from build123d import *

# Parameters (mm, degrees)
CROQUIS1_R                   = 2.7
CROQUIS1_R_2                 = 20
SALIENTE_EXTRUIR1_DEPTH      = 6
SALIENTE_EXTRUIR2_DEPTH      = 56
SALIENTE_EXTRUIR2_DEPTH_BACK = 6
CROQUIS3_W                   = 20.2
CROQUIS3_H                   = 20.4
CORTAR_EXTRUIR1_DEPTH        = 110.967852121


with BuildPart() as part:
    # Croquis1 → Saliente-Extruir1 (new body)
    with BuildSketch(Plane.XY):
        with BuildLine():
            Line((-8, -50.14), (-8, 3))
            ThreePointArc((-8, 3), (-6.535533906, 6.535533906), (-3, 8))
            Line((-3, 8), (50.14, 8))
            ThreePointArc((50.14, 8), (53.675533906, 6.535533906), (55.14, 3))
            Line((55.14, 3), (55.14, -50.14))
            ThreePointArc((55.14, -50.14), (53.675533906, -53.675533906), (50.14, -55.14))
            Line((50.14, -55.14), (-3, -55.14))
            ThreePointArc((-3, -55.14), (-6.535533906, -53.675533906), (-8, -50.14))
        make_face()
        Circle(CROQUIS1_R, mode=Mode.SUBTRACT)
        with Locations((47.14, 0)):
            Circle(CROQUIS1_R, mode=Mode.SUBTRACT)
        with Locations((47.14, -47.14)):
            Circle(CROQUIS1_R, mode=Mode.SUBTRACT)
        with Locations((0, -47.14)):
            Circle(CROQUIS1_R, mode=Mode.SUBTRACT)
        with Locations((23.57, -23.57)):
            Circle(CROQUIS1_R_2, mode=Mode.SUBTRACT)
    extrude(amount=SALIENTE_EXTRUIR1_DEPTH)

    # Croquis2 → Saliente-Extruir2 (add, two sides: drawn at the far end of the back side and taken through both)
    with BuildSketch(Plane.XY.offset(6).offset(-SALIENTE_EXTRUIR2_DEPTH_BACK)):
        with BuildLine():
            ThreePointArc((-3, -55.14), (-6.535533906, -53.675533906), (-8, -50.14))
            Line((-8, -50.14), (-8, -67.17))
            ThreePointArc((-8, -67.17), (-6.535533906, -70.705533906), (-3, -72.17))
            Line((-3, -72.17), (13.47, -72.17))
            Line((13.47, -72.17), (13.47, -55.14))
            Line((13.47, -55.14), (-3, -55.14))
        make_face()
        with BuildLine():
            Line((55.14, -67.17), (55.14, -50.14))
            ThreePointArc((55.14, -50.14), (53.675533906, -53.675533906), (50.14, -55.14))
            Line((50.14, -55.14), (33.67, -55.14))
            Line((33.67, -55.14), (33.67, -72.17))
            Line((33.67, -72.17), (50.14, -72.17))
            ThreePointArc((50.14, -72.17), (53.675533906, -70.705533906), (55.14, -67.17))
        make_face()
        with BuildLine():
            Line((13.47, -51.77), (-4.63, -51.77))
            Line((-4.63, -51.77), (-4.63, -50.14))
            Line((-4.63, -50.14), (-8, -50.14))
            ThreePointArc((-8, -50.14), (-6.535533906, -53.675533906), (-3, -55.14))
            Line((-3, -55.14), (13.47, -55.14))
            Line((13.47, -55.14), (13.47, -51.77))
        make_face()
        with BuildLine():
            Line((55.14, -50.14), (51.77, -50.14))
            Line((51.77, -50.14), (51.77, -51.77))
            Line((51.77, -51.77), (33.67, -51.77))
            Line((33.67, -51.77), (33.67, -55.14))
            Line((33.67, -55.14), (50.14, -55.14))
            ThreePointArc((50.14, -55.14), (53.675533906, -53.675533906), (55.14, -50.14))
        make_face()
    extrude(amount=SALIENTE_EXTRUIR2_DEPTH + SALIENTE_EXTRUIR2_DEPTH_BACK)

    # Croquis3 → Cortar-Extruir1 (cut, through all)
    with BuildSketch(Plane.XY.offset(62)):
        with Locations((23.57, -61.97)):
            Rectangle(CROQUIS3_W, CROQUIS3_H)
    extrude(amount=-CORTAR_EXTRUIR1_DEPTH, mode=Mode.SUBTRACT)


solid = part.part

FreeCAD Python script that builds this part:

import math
import FreeCAD as App
import Part
import Sketcher

V = App.Vector
Q = App.Units.Quantity


def add_polygon(sketch, points):
    """Adds a closed chain of lines whose ends are joined by coincident constraints."""
    first, n = sketch.GeometryCount, len(points)
    for a, b in zip(points, points[1:] + points[:1]):
        sketch.addGeometry(Part.LineSegment(App.Vector(*a, 0), App.Vector(*b, 0)), False)
    for i in range(n):
        sketch.addConstraint(Sketcher.Constraint("Coincident", first + i, 2, first + (i + 1) % n, 1))

doc = App.newDocument("Part")
body = doc.addObject("PartDesign::Body", "Body")

# Sketch on XY plane
sketch1 = body.newObject("Sketcher::SketchObject", "Sketch")
sketch1.AttachmentSupport = (doc.getObject("XY_Plane"), [""])
sketch1.MapMode = "FlatFace"
sketch1.addGeometry(Part.LineSegment(V(-8, 3, 0), V(-8, -50.1, 0)), False)
sketch1.addGeometry(Part.ArcOfCircle(Part.Circle(V(-3, -50.1, 0), V(0, 0, 1), 5), math.radians(180), math.radians(270)), False)
sketch1.addGeometry(Part.LineSegment(V(-3, -55.1, 0), V(50.1, -55.1, 0)), False)
sketch1.addGeometry(Part.ArcOfCircle(Part.Circle(V(50.1, -50.1, 0), V(0, 0, 1), 5), math.radians(-90), math.radians(0)), False)
sketch1.addGeometry(Part.LineSegment(V(55.1, -50.1, 0), V(55.1, 3, 0)), False)
sketch1.addGeometry(Part.ArcOfCircle(Part.Circle(V(50.1, 3, 0), V(0, 0, 1), 5), math.radians(0), math.radians(90)), False)
sketch1.addGeometry(Part.LineSegment(V(50.1, 8, 0), V(-3, 8, 0)), False)
sketch1.addGeometry(Part.ArcOfCircle(Part.Circle(V(-3, 3, 0), V(0, 0, 1), 5), math.radians(90), math.radians(180)), False)
sketch1.addGeometry(Part.Circle(V(47.1, -47.1, 0), V(0, 0, 1), 2.7), False)
sketch1.addGeometry(Part.Circle(V(0, -47.1, 0), V(0, 0, 1), 2.7), False)
sketch1.addGeometry(Part.Circle(V(47.1, 0, 0), V(0, 0, 1), 2.7), False)
sketch1.addGeometry(Part.Circle(V(23.6, -23.6, 0), V(0, 0, 1), 20), False)
sketch1.addGeometry(Part.Circle(V(0, 0, 0), V(0, 0, 1), 2.7), False)
sketch1.addConstraint(Sketcher.Constraint("Tangent", 0, 2, 1, 1))
sketch1.addConstraint(Sketcher.Constraint("Tangent", 1, 2, 2, 1))
sketch1.addConstraint(Sketcher.Constraint("Tangent", 2, 2, 3, 1))
sketch1.addConstraint(Sketcher.Constraint("Tangent", 3, 2, 4, 1))
sketch1.addConstraint(Sketcher.Constraint("Tangent", 4, 2, 5, 1))
sketch1.addConstraint(Sketcher.Constraint("Tangent", 5, 2, 6, 1))
sketch1.addConstraint(Sketcher.Constraint("Tangent", 6, 2, 7, 1))
sketch1.addConstraint(Sketcher.Constraint("Tangent", 7, 2, 0, 1))
sketch1.addConstraint(Sketcher.Constraint("Vertical", 0))
sketch1.addConstraint(Sketcher.Constraint("Horizontal", 2))
sketch1.addConstraint(Sketcher.Constraint("Vertical", 4))
sketch1.addConstraint(Sketcher.Constraint("Horizontal", 6))
sketch1.addConstraint(Sketcher.Constraint("Coincident", 12, 3, -1, 1))
sketch1.addConstraint(Sketcher.Constraint("Equal", 1, 3))
sketch1.addConstraint(Sketcher.Constraint("Equal", 3, 5))
sketch1.addConstraint(Sketcher.Constraint("Equal", 5, 7))
sketch1.addConstraint(Sketcher.Constraint("Equal", 8, 9))
sketch1.addConstraint(Sketcher.Constraint("Equal", 9, 10))
sketch1.addConstraint(Sketcher.Constraint("Equal", 10, 12))
sketch1.addConstraint(Sketcher.Constraint("PointOnObject", 9, 3, -2))
sketch1.addConstraint(Sketcher.Constraint("PointOnObject", 10, 3, -1))
sketch1.addConstraint(Sketcher.Constraint("Horizontal", 8, 3, 9, 3))
sketch1.addConstraint(Sketcher.Constraint("Vertical", 8, 3, 10, 3))
sketch1.addConstraint(Sketcher.Constraint("Equal", 6, 0))
sketch1.addConstraint(Sketcher.Constraint("Diameter", 11, Q("40 mm")))
sketch1.addConstraint(Sketcher.Constraint("Radius", 1, Q("5 mm")))
sketch1.addConstraint(Sketcher.Constraint("Diameter", 8, Q("5.4 mm")))
sketch1.addConstraint(Sketcher.Constraint("DistanceX", 1, 3, -1, 1, Q("3 mm")))
sketch1.addConstraint(Sketcher.Constraint("DistanceY", -1, 1, 5, 3, Q("3 mm")))
sketch1.addConstraint(Sketcher.Constraint("DistanceX", 8, 3, 3, 3, Q("3 mm")))
sketch1.addConstraint(Sketcher.Constraint("DistanceY", 3, 3, 8, 3, Q("3 mm")))
sketch1.addConstraint(Sketcher.Constraint("DistanceX", 2, 1, 2, 2, Q("53.14 mm")))
sketch1.addConstraint(Sketcher.Constraint("DistanceX", -1, 1, 11, 3, Q("23.57 mm")))
sketch1.addConstraint(Sketcher.Constraint("DistanceY", 11, 3, -1, 1, Q("23.57 mm")))
pad1 = body.newObject("PartDesign::Pad", "Pad")
pad1.Profile = sketch1
pad1.Length = 6

# Sketch on XY plane
sketch2 = body.newObject("Sketcher::SketchObject", "Sketch001")
sketch2.AttachmentSupport = (doc.getObject("XY_Plane"), [""])
sketch2.MapMode = "FlatFace"
sketch2.AttachmentOffset = App.Placement(V(0, 0, 6), App.Rotation())
sketch2.addGeometry(Part.LineSegment(V(-8, -50.1, 0), V(-8, -67.2, 0)), False)
sketch2.addGeometry(Part.ArcOfCircle(Part.Circle(V(-3, -67.2, 0), V(0, 0, 1), 5), math.radians(180), math.radians(270)), False)
sketch2.addGeometry(Part.LineSegment(V(-3, -72.2, 0), V(13.5, -72.2, 0)), False)
sketch2.addGeometry(Part.LineSegment(V(13.5, -72.2, 0), V(13.5, -51.8, 0)), False)
sketch2.addGeometry(Part.LineSegment(V(13.5, -51.8, 0), V(-4.6, -51.8, 0)), False)
sketch2.addGeometry(Part.LineSegment(V(-4.6, -51.8, 0), V(-4.6, -50.1, 0)), False)
sketch2.addGeometry(Part.LineSegment(V(-4.6, -50.1, 0), V(-8, -50.1, 0)), False)
sketch2.addGeometry(Part.LineSegment(V(55.1, -67.2, 0), V(55.1, -50.1, 0)), False)
sketch2.addGeometry(Part.LineSegment(V(55.1, -50.1, 0), V(51.8, -50.1, 0)), False)
sketch2.addGeometry(Part.LineSegment(V(51.8, -50.1, 0), V(51.8, -51.8, 0)), False)
sketch2.addGeometry(Part.LineSegment(V(51.8, -51.8, 0), V(33.7, -51.8, 0)), False)
sketch2.addGeometry(Part.LineSegment(V(33.7, -51.8, 0), V(33.7, -72.2, 0)), False)
sketch2.addGeometry(Part.LineSegment(V(33.7, -72.2, 0), V(50.1, -72.2, 0)), False)
sketch2.addGeometry(Part.ArcOfCircle(Part.Circle(V(50.1, -67.2, 0), V(0, 0, 1), 5), math.radians(-90), math.radians(0)), False)
sketch2.addConstraint(Sketcher.Constraint("Tangent", 0, 2, 1, 1))
sketch2.addConstraint(Sketcher.Constraint("Tangent", 1, 2, 2, 1))
sketch2.addConstraint(Sketcher.Constraint("Coincident", 2, 2, 3, 1))
sketch2.addConstraint(Sketcher.Constraint("Coincident", 3, 2, 4, 1))
sketch2.addConstraint(Sketcher.Constraint("Coincident", 4, 2, 5, 1))
sketch2.addConstraint(Sketcher.Constraint("Coincident", 5, 2, 6, 1))
sketch2.addConstraint(Sketcher.Constraint("Coincident", 6, 2, 0, 1))
sketch2.addConstraint(Sketcher.Constraint("Coincident", 7, 2, 8, 1))
sketch2.addConstraint(Sketcher.Constraint("Coincident", 8, 2, 9, 1))
sketch2.addConstraint(Sketcher.Constraint("Coincident", 9, 2, 10, 1))
sketch2.addConstraint(Sketcher.Constraint("Coincident", 10, 2, 11, 1))
sketch2.addConstraint(Sketcher.Constraint("Coincident", 11, 2, 12, 1))
sketch2.addConstraint(Sketcher.Constraint("Tangent", 12, 2, 13, 1))
sketch2.addConstraint(Sketcher.Constraint("Tangent", 13, 2, 7, 1))
sketch2.addConstraint(Sketcher.Constraint("Vertical", 0))
sketch2.addConstraint(Sketcher.Constraint("Horizontal", 2))
sketch2.addConstraint(Sketcher.Constraint("Vertical", 3))
sketch2.addConstraint(Sketcher.Constraint("Horizontal", 4))
sketch2.addConstraint(Sketcher.Constraint("Vertical", 5))
sketch2.addConstraint(Sketcher.Constraint("Horizontal", 6))
sketch2.addConstraint(Sketcher.Constraint("Vertical", 7))
sketch2.addConstraint(Sketcher.Constraint("Horizontal", 8))
sketch2.addConstraint(Sketcher.Constraint("Vertical", 9))
sketch2.addConstraint(Sketcher.Constraint("Horizontal", 10))
sketch2.addConstraint(Sketcher.Constraint("Vertical", 11))
sketch2.addConstraint(Sketcher.Constraint("Horizontal", 12))
sketch2.addConstraint(Sketcher.Constraint("Equal", 1, 13))
sketch2.addConstraint(Sketcher.Constraint("Horizontal", 1, 3, 13, 3))
sketch2.addConstraint(Sketcher.Constraint("Horizontal", 6, 2, 7, 2))
sketch2.addConstraint(Sketcher.Constraint("Horizontal", 4, 2, 9, 2))
sketch2.addConstraint(Sketcher.Constraint("Equal", 6, 8))
sketch2.addConstraint(Sketcher.Constraint("Equal", 4, 10))
sketch2.addConstraint(Sketcher.Constraint("Radius", 1, Q("5 mm")))
sketch2.addConstraint(Sketcher.Constraint("DistanceX", 4, 2, 4, 1, Q("18.1 mm")))
sketch2.addConstraint(Sketcher.Constraint("DistanceY", 3, 1, 3, 2, Q("20.4 mm")))
sketch2.addConstraint(Sketcher.Constraint("DistanceX", 1, 3, -1, 1, Q("3 mm")))
sketch2.addConstraint(Sketcher.Constraint("DistanceX", 2, 1, 2, 2, Q("16.47 mm")))
sketch2.addConstraint(Sketcher.Constraint("DistanceY", 0, 2, 0, 1, Q("17.03 mm")))
sketch2.addConstraint(Sketcher.Constraint("DistanceX", 3, 2, 8, 2, Q("38.3 mm")))
sketch2.addConstraint(Sketcher.Constraint("DistanceY", 1, 3, -1, 1, Q("67.17 mm")))
pad2 = body.newObject("PartDesign::Pad", "Pad001")
pad2.Profile = sketch2
pad2.Type = "TwoLengths"
pad2.Length = 56
pad2.Length2 = 6

# Sketch on XY plane
sketch3 = body.newObject("Sketcher::SketchObject", "Sketch002")
sketch3.AttachmentSupport = (doc.getObject("XY_Plane"), [""])
sketch3.MapMode = "FlatFace"
sketch3.AttachmentOffset = App.Placement(V(0, 0, 62), App.Rotation())
add_polygon(sketch3, [(13, -52), (13, -72), (34, -72), (34, -52)])  # lines 0-3
sketch3.addConstraint(Sketcher.Constraint("Vertical", 0))
sketch3.addConstraint(Sketcher.Constraint("Horizontal", 1))
sketch3.addConstraint(Sketcher.Constraint("Vertical", 2))
sketch3.addConstraint(Sketcher.Constraint("Horizontal", 3))
sketch3.addConstraint(Sketcher.Constraint("DistanceX", 1, 1, 1, 2, Q("20.2 mm")))
sketch3.addConstraint(Sketcher.Constraint("DistanceY", 0, 2, 0, 1, Q("20.4 mm")))
sketch3.addConstraint(Sketcher.Constraint("DistanceX", -1, 1, 0, 2, Q("13.47 mm")))
sketch3.addConstraint(Sketcher.Constraint("DistanceY", 0, 2, -1, 1, Q("72.17 mm")))
pocket1 = body.newObject("PartDesign::Pocket", "Pocket")
pocket1.Profile = sketch3
pocket1.Type = "ThroughAll"

doc.recompute()
